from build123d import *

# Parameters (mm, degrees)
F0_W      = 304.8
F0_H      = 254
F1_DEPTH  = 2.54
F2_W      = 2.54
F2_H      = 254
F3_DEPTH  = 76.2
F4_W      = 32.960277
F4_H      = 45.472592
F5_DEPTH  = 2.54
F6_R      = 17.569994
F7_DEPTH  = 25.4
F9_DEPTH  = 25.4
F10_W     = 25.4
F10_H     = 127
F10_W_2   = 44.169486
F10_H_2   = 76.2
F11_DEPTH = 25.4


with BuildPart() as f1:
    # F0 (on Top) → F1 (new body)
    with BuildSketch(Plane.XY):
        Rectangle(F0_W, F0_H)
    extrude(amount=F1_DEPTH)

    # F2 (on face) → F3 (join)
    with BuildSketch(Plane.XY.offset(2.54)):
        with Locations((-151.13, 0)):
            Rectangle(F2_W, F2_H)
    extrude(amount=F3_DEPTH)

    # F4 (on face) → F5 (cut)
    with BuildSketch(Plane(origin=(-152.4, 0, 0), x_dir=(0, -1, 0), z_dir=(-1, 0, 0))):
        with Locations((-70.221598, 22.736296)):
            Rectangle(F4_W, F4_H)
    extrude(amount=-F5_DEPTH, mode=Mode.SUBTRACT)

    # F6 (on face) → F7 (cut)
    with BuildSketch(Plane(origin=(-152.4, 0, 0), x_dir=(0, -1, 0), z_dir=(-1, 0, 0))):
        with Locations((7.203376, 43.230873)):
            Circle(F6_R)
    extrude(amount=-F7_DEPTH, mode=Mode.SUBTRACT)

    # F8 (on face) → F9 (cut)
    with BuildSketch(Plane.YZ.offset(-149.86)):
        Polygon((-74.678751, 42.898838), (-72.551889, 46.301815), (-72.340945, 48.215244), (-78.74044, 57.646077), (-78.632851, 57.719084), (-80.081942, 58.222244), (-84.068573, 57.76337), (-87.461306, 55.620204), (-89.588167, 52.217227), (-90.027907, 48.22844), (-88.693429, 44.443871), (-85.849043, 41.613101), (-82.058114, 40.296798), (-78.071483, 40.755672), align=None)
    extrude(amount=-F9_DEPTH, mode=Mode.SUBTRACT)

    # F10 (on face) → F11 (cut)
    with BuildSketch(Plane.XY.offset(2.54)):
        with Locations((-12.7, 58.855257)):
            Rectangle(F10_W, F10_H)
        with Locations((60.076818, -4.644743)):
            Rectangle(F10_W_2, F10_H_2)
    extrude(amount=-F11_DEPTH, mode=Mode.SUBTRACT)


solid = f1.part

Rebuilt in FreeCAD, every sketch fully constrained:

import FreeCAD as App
import Part
import Sketcher

V = App.Vector
Q = App.Units.Quantity


def add_polygon(sketch, points):
    """Adds a closed chain of lines whose ends are joined by coincident constraints."""
    first, n = sketch.GeometryCount, len(points)
    for a, b in zip(points, points[1:] + points[:1]):
        sketch.addGeometry(Part.LineSegment(App.Vector(*a, 0), App.Vector(*b, 0)), False)
    for i in range(n):
        sketch.addConstraint(Sketcher.Constraint("Coincident", first + i, 2, first + (i + 1) % n, 1))

doc = App.newDocument("Part")
body = doc.addObject("PartDesign::Body", "Body")

sketch1 = doc.addObject("Sketcher::SketchObject", "Sketch")
body.addObject(sketch1)
sketch1.AttachmentSupport = (doc.XY_Plane, [""])
sketch1.MapMode = "FlatFace"
add_polygon(sketch1, [(-152, 127), (-152, -127), (152, -127), (152, 127)])
sketch1.addConstraint(Sketcher.Constraint("Vertical", 0))
sketch1.addConstraint(Sketcher.Constraint("Horizontal", 1))
sketch1.addConstraint(Sketcher.Constraint("Vertical", 2))
sketch1.addConstraint(Sketcher.Constraint("Horizontal", 3))
sketch1.addConstraint(Sketcher.Constraint("Symmetric", 0, 2, 2, 2, -1, 1))
sketch1.addConstraint(Sketcher.Constraint("DistanceX", 1, 1, 1, 2, Q("12 in")))
sketch1.addConstraint(Sketcher.Constraint("DistanceY", 0, 2, 0, 1, Q("10 in")))
pad1 = doc.addObject("PartDesign::Pad", "Pad")
body.addObject(pad1)
pad1.Profile = sketch1
pad1.Length = Q("0.1 in")

sketch2 = doc.addObject("Sketcher::SketchObject", "Sketch001")
body.addObject(sketch2)
sketch2.AttachmentSupport = (doc.XY_Plane, [""])
sketch2.MapMode = "FlatFace"
sketch2.AttachmentOffset = App.Placement(V(0, 0, 0.1 * 25.4), App.Rotation())
add_polygon(sketch2, [(-152.4, 127), (-152.4, -127), (-149.9, -127), (-149.9, 127)])
sketch2.addConstraint(Sketcher.Constraint("Vertical", 0))
sketch2.addConstraint(Sketcher.Constraint("Horizontal", 1))
sketch2.addConstraint(Sketcher.Constraint("Vertical", 2))
sketch2.addConstraint(Sketcher.Constraint("Horizontal", 3))
sketch2.addConstraint(Sketcher.Constraint("DistanceY", 0, 2, 0, 1, Q("10 in")))
sketch2.addConstraint(Sketcher.Constraint("DistanceX", 1, 1, 1, 2, Q("0.1 in")))
sketch2.addConstraint(Sketcher.Constraint("DistanceX", 0, 2, -1, 1, Q("6 in")))
sketch2.addConstraint(Sketcher.Constraint("DistanceY", 0, 2, -1, 1, Q("5 in")))
pad2 = doc.addObject("PartDesign::Pad", "Pad001")
body.addObject(pad2)
pad2.Profile = sketch2
pad2.Length = Q("3 in")

sketch3 = doc.addObject("Sketcher::SketchObject", "Sketch002")
body.addObject(sketch3)
sketch3.AttachmentSupport = (doc.YZ_Plane, [""])
sketch3.MapMode = "FlatFace"
sketch3.AttachmentOffset = App.Placement(V(0, 0, -6 * 25.4), App.Rotation())
add_polygon(sketch3, [(87, 45), (87, 0), (54, 0), (54, 45)])
sketch3.addConstraint(Sketcher.Constraint("Vertical", 0))
sketch3.addConstraint(Sketcher.Constraint("Horizontal", 1))
sketch3.addConstraint(Sketcher.Constraint("Vertical", 2))
sketch3.addConstraint(Sketcher.Constraint("Horizontal", 3))
sketch3.addConstraint(Sketcher.Constraint("PointOnObject", 0, 2, -1))
sketch3.addConstraint(Sketcher.Constraint("DistanceX", 1, 2, 1, 1, Q("32.960277 mm")))
sketch3.addConstraint(Sketcher.Constraint("DistanceY", 0, 2, 0, 1, Q("45.472592 mm")))
sketch3.addConstraint(Sketcher.Constraint("DistanceX", -1, 1, 1, 2, Q("53.741459 mm")))
pocket1 = doc.addObject("PartDesign::Pocket", "Pocket")
body.addObject(pocket1)
pocket1.Profile = sketch3
pocket1.Length = Q("0.1 in")
pocket1.Reversed = True

sketch4 = doc.addObject("Sketcher::SketchObject", "Sketch003")
body.addObject(sketch4)
sketch4.AttachmentSupport = (doc.YZ_Plane, [""])
sketch4.MapMode = "FlatFace"
sketch4.AttachmentOffset = App.Placement(V(0, 0, -6 * 25.4), App.Rotation())
sketch4.addGeometry(Part.Circle(V(-7, 43, 0), V(0, 0, 1), 18), False)
sketch4.addConstraint(Sketcher.Constraint("Diameter", 0, Q("35.139988 mm")))
sketch4.addConstraint(Sketcher.Constraint("DistanceX", 0, 3, -1, 1, Q("7.203376 mm")))
sketch4.addConstraint(Sketcher.Constraint("DistanceY", -1, 1, 0, 3, Q("43.230873 mm")))
pocket2 = doc.addObject("PartDesign::Pocket", "Pocket001")
body.addObject(pocket2)
pocket2.Profile = sketch4
pocket2.Length = Q("1 in")
pocket2.Reversed = True

sketch5 = doc.addObject("Sketcher::SketchObject", "Sketch004")
body.addObject(sketch5)
sketch5.AttachmentSupport = (doc.YZ_Plane, [""])
sketch5.MapMode = "FlatFace"
sketch5.AttachmentOffset = App.Placement(V(0, 0, -5.9 * 25.4), App.Rotation())
add_polygon(sketch5, [(-74.68, 42.9), (-72.55, 46.3), (-72.34, 48.22), (-78.74, 57.65), (-78.63, 57.72), (-80.08, 58.22), (-84.07, 57.76), (-87.46, 55.62), (-89.59, 52.22), (-90.03, 48.23), (-88.69, 44.44), (-85.85, 41.61), (-82.06, 40.3), (-78.07, 40.76)])
sketch5.addConstraint(Sketcher.Constraint("Perpendicular", 2, 3))
sketch5.addConstraint(Sketcher.Constraint("Parallel", 0, 7))
sketch5.addConstraint(Sketcher.Constraint("Parallel", 1, 8))
sketch5.addConstraint(Sketcher.Constraint("Parallel", 4, 11))
sketch5.addConstraint(Sketcher.Constraint("Parallel", 5, 12))
sketch5.addConstraint(Sketcher.Constraint("Parallel", 6, 13))
sketch5.addConstraint(Sketcher.Constraint("Equal", 0, 5))
sketch5.addConstraint(Sketcher.Constraint("Equal", 5, 6))
sketch5.addConstraint(Sketcher.Constraint("Equal", 6, 7))
sketch5.addConstraint(Sketcher.Constraint("Equal", 7, 8))
sketch5.addConstraint(Sketcher.Constraint("Equal", 8, 9))
sketch5.addConstraint(Sketcher.Constraint("Equal", 9, 10))
sketch5.addConstraint(Sketcher.Constraint("Equal", 10, 11))
sketch5.addConstraint(Sketcher.Constraint("Equal", 11, 12))
sketch5.addConstraint(Sketcher.Constraint("Equal", 12, 13))
sketch5.addConstraint(Sketcher.Constraint("DistanceY", -1, 1, 10, 2, Q("41.613101 mm")))
sketch5.addConstraint(Sketcher.Constraint("DistanceY", -1, 1, 11, 2, Q("40.296798 mm")))
sketch5.addConstraint(Sketcher.Constraint("DistanceX", 4, 2, 2, 2, Q("1.341502 mm")))
sketch5.addConstraint(Sketcher.Constraint("DistanceY", 1, 2, 4, 2, Q("10.007 mm")))
sketch5.addConstraint(Sketcher.Constraint("DistanceX", 8, 2, 6, 2, Q("2.566601 mm")))
sketch5.addConstraint(Sketcher.Constraint("DistanceY", 9, 2, 5, 2, Q("13.319499 mm")))
sketch5.addConstraint(Sketcher.Constraint("DistanceY", 12, 2, 9, 2, Q("3.688199 mm")))
sketch5.addConstraint(Sketcher.Constraint("Distance", 1, Q("1.925022 mm")))
sketch5.addConstraint(Sketcher.Constraint("Distance", 2, Q("11.397111 mm")))
sketch5.addConstraint(Sketcher.Constraint("Distance", 3, Q("0.130021 mm")))
sketch5.addConstraint(Sketcher.Constraint("DistanceX", 0, 2, -1, 1, Q("72.551889 mm")))
sketch5.addConstraint(Sketcher.Constraint("DistanceX", 2, 2, -1, 1, Q("78.74044 mm")))
sketch5.addConstraint(Sketcher.Constraint("DistanceY", -1, 1, 5, 2, Q("57.76337 mm")))
pocket3 = doc.addObject("PartDesign::Pocket", "Pocket002")
body.addObject(pocket3)
pocket3.Profile = sketch5
pocket3.Length = Q("1 in")

sketch6 = doc.addObject("Sketcher::SketchObject", "Sketch005")
body.addObject(sketch6)
sketch6.AttachmentSupport = (doc.XY_Plane, [""])
sketch6.MapMode = "FlatFace"
sketch6.AttachmentOffset = App.Placement(V(0, 0, 0.1 * 25.4), App.Rotation())
add_polygon(sketch6, [(-25, 122), (-25, -5), (0, -5), (0, 122)])
add_polygon(sketch6, [(38, 33), (38, -43), (82, -43), (82, 33)])
sketch6.addConstraint(Sketcher.Constraint("Vertical", 0))
sketch6.addConstraint(Sketcher.Constraint("Horizontal", 1))
sketch6.addConstraint(Sketcher.Constraint("Vertical", 2))
sketch6.addConstraint(Sketcher.Constraint("Horizontal", 3))
sketch6.addConstraint(Sketcher.Constraint("Vertical", 4))
sketch6.addConstraint(Sketcher.Constraint("Horizontal", 5))
sketch6.addConstraint(Sketcher.Constraint("Vertical", 6))
sketch6.addConstraint(Sketcher.Constraint("Horizontal", 7))
sketch6.addConstraint(Sketcher.Constraint("PointOnObject", 1, 2, -2))
sketch6.addConstraint(Sketcher.Constraint("DistanceX", 1, 1, 1, 2, Q("1 in")))
sketch6.addConstraint(Sketcher.Constraint("DistanceY", 0, 2, 0, 1, Q("5 in")))
sketch6.addConstraint(Sketcher.Constraint("DistanceY", 4, 2, 4, 1, Q("3 in")))
sketch6.addConstraint(Sketcher.Constraint("DistanceY", 4, 2, 1, 2, Q("1.5 in")))
sketch6.addConstraint(Sketcher.Constraint("DistanceX", 5, 1, 5, 2, Q("44.169486 mm")))
sketch6.addConstraint(Sketcher.Constraint("DistanceX", -1, 1, 5, 2, Q("82.161561 mm")))
sketch6.addConstraint(Sketcher.Constraint("DistanceY", 0, 2, -1, 1, Q("4.644743 mm")))
pocket4 = doc.addObject("PartDesign::Pocket", "Pocket003")
body.addObject(pocket4)
pocket4.Profile = sketch6
pocket4.Length = Q("1 in")

doc.recompute()
